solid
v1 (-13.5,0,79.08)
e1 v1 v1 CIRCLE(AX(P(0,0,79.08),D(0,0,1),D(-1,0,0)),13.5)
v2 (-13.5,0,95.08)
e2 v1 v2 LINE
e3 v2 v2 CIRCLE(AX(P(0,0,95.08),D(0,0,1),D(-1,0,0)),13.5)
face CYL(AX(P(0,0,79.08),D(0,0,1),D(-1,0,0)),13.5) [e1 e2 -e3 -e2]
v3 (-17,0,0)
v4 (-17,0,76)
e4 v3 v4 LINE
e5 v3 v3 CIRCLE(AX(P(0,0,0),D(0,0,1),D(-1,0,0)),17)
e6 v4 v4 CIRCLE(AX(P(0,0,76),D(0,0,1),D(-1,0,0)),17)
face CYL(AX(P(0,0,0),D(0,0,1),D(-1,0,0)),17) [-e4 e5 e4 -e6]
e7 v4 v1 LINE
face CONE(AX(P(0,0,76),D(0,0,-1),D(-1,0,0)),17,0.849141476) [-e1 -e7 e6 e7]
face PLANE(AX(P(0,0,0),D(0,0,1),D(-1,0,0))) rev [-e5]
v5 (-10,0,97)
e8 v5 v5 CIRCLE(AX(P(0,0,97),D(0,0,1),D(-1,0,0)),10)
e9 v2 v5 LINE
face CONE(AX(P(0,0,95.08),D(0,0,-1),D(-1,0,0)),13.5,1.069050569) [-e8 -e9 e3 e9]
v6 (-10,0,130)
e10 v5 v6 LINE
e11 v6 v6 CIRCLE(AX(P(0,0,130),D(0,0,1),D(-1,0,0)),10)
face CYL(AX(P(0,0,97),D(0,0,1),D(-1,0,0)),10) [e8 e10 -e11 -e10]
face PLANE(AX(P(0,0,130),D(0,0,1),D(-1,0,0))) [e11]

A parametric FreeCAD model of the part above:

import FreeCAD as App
import Part
import Sketcher

V = App.Vector
Q = App.Units.Quantity


def add_polygon(sketch, points):
    """Adds a closed chain of lines whose ends are joined by coincident constraints."""
    first, n = sketch.GeometryCount, len(points)
    for a, b in zip(points, points[1:] + points[:1]):
        sketch.addGeometry(Part.LineSegment(App.Vector(*a, 0), App.Vector(*b, 0)), False)
    for i in range(n):
        sketch.addConstraint(Sketcher.Constraint("Coincident", first + i, 2, first + (i + 1) % n, 1))

doc = App.newDocument("Part")
params = doc.addObject("Spreadsheet::Sheet", "Params")
for row, (alias, value) in enumerate([
    ("sketch1_width", "17 mm"),
    ("sketch1_width2", "10 mm"),
    ("sketch1_height", "130 mm"),
    ("sketch1_height2", "33 mm"),
    ("sketch1_height3", "16 mm"),
    ("revolution_angle", "360 deg"),
], start=1):
    params.set(f"A{row}", alias)
    params.set(f"B{row}", "=" + value)
    params.setAlias(f"B{row}", alias)

body = doc.addObject("PartDesign::Body", "Body")

sketch1 = body.newObject("Sketcher::SketchObject", "Sketch")
sketch1.AttachmentSupport = (doc.getObject("XZ_Plane"), [""])
sketch1.MapMode = "FlatFace"
add_polygon(sketch1, [(-17, 0), (0, 0), (0, 130), (-10, 130), (-10, 97), (-13.5, 95.1), (-13.5, 79.1), (-17, 76)])
sketch1.addConstraint([
    Sketcher.Constraint("Horizontal", 0),
    Sketcher.Constraint("Vertical", 1),
    Sketcher.Constraint("Horizontal", 2),
    Sketcher.Constraint("Vertical", 3),
    Sketcher.Constraint("Vertical", 5),
    Sketcher.Constraint("Vertical", 7),
    Sketcher.Constraint("Coincident", 0, 2, -1, 1),
    Sketcher.Constraint("DistanceX", 0, 1, 0, 2, Q("17 mm")),
    Sketcher.Constraint("DistanceX", 2, 2, 2, 1, Q("10 mm")),
    Sketcher.Constraint("DistanceY", 1, 1, 1, 2, Q("130 mm")),
    Sketcher.Constraint("DistanceY", 3, 2, 3, 1, Q("33 mm")),
    Sketcher.Constraint("DistanceY", 5, 2, 5, 1, Q("16 mm")),
    Sketcher.Constraint("DistanceY", 7, 2, 7, 1, Q("76 mm")),
    Sketcher.Constraint("DistanceX", 4, 2, -1, 1, Q("13.5 mm")),
    Sketcher.Constraint("DistanceY", -1, 1, 4, 2, Q("95.08 mm")),
])
sketch1.setExpression("Constraints[15]", "Params.sketch1_width")
sketch1.setExpression("Constraints[16]", "Params.sketch1_width2")
sketch1.setExpression("Constraints[17]", "Params.sketch1_height")
sketch1.setExpression("Constraints[18]", "Params.sketch1_height2")
sketch1.setExpression("Constraints[19]", "Params.sketch1_height3")
revolution = body.newObject("PartDesign::Revolution", "Revolution")
revolution.Profile = sketch1
revolution.ReferenceAxis = (sketch1, ["V_Axis"])
revolution.setExpression("Angle", "Params.revolution_angle")

doc.recompute()
